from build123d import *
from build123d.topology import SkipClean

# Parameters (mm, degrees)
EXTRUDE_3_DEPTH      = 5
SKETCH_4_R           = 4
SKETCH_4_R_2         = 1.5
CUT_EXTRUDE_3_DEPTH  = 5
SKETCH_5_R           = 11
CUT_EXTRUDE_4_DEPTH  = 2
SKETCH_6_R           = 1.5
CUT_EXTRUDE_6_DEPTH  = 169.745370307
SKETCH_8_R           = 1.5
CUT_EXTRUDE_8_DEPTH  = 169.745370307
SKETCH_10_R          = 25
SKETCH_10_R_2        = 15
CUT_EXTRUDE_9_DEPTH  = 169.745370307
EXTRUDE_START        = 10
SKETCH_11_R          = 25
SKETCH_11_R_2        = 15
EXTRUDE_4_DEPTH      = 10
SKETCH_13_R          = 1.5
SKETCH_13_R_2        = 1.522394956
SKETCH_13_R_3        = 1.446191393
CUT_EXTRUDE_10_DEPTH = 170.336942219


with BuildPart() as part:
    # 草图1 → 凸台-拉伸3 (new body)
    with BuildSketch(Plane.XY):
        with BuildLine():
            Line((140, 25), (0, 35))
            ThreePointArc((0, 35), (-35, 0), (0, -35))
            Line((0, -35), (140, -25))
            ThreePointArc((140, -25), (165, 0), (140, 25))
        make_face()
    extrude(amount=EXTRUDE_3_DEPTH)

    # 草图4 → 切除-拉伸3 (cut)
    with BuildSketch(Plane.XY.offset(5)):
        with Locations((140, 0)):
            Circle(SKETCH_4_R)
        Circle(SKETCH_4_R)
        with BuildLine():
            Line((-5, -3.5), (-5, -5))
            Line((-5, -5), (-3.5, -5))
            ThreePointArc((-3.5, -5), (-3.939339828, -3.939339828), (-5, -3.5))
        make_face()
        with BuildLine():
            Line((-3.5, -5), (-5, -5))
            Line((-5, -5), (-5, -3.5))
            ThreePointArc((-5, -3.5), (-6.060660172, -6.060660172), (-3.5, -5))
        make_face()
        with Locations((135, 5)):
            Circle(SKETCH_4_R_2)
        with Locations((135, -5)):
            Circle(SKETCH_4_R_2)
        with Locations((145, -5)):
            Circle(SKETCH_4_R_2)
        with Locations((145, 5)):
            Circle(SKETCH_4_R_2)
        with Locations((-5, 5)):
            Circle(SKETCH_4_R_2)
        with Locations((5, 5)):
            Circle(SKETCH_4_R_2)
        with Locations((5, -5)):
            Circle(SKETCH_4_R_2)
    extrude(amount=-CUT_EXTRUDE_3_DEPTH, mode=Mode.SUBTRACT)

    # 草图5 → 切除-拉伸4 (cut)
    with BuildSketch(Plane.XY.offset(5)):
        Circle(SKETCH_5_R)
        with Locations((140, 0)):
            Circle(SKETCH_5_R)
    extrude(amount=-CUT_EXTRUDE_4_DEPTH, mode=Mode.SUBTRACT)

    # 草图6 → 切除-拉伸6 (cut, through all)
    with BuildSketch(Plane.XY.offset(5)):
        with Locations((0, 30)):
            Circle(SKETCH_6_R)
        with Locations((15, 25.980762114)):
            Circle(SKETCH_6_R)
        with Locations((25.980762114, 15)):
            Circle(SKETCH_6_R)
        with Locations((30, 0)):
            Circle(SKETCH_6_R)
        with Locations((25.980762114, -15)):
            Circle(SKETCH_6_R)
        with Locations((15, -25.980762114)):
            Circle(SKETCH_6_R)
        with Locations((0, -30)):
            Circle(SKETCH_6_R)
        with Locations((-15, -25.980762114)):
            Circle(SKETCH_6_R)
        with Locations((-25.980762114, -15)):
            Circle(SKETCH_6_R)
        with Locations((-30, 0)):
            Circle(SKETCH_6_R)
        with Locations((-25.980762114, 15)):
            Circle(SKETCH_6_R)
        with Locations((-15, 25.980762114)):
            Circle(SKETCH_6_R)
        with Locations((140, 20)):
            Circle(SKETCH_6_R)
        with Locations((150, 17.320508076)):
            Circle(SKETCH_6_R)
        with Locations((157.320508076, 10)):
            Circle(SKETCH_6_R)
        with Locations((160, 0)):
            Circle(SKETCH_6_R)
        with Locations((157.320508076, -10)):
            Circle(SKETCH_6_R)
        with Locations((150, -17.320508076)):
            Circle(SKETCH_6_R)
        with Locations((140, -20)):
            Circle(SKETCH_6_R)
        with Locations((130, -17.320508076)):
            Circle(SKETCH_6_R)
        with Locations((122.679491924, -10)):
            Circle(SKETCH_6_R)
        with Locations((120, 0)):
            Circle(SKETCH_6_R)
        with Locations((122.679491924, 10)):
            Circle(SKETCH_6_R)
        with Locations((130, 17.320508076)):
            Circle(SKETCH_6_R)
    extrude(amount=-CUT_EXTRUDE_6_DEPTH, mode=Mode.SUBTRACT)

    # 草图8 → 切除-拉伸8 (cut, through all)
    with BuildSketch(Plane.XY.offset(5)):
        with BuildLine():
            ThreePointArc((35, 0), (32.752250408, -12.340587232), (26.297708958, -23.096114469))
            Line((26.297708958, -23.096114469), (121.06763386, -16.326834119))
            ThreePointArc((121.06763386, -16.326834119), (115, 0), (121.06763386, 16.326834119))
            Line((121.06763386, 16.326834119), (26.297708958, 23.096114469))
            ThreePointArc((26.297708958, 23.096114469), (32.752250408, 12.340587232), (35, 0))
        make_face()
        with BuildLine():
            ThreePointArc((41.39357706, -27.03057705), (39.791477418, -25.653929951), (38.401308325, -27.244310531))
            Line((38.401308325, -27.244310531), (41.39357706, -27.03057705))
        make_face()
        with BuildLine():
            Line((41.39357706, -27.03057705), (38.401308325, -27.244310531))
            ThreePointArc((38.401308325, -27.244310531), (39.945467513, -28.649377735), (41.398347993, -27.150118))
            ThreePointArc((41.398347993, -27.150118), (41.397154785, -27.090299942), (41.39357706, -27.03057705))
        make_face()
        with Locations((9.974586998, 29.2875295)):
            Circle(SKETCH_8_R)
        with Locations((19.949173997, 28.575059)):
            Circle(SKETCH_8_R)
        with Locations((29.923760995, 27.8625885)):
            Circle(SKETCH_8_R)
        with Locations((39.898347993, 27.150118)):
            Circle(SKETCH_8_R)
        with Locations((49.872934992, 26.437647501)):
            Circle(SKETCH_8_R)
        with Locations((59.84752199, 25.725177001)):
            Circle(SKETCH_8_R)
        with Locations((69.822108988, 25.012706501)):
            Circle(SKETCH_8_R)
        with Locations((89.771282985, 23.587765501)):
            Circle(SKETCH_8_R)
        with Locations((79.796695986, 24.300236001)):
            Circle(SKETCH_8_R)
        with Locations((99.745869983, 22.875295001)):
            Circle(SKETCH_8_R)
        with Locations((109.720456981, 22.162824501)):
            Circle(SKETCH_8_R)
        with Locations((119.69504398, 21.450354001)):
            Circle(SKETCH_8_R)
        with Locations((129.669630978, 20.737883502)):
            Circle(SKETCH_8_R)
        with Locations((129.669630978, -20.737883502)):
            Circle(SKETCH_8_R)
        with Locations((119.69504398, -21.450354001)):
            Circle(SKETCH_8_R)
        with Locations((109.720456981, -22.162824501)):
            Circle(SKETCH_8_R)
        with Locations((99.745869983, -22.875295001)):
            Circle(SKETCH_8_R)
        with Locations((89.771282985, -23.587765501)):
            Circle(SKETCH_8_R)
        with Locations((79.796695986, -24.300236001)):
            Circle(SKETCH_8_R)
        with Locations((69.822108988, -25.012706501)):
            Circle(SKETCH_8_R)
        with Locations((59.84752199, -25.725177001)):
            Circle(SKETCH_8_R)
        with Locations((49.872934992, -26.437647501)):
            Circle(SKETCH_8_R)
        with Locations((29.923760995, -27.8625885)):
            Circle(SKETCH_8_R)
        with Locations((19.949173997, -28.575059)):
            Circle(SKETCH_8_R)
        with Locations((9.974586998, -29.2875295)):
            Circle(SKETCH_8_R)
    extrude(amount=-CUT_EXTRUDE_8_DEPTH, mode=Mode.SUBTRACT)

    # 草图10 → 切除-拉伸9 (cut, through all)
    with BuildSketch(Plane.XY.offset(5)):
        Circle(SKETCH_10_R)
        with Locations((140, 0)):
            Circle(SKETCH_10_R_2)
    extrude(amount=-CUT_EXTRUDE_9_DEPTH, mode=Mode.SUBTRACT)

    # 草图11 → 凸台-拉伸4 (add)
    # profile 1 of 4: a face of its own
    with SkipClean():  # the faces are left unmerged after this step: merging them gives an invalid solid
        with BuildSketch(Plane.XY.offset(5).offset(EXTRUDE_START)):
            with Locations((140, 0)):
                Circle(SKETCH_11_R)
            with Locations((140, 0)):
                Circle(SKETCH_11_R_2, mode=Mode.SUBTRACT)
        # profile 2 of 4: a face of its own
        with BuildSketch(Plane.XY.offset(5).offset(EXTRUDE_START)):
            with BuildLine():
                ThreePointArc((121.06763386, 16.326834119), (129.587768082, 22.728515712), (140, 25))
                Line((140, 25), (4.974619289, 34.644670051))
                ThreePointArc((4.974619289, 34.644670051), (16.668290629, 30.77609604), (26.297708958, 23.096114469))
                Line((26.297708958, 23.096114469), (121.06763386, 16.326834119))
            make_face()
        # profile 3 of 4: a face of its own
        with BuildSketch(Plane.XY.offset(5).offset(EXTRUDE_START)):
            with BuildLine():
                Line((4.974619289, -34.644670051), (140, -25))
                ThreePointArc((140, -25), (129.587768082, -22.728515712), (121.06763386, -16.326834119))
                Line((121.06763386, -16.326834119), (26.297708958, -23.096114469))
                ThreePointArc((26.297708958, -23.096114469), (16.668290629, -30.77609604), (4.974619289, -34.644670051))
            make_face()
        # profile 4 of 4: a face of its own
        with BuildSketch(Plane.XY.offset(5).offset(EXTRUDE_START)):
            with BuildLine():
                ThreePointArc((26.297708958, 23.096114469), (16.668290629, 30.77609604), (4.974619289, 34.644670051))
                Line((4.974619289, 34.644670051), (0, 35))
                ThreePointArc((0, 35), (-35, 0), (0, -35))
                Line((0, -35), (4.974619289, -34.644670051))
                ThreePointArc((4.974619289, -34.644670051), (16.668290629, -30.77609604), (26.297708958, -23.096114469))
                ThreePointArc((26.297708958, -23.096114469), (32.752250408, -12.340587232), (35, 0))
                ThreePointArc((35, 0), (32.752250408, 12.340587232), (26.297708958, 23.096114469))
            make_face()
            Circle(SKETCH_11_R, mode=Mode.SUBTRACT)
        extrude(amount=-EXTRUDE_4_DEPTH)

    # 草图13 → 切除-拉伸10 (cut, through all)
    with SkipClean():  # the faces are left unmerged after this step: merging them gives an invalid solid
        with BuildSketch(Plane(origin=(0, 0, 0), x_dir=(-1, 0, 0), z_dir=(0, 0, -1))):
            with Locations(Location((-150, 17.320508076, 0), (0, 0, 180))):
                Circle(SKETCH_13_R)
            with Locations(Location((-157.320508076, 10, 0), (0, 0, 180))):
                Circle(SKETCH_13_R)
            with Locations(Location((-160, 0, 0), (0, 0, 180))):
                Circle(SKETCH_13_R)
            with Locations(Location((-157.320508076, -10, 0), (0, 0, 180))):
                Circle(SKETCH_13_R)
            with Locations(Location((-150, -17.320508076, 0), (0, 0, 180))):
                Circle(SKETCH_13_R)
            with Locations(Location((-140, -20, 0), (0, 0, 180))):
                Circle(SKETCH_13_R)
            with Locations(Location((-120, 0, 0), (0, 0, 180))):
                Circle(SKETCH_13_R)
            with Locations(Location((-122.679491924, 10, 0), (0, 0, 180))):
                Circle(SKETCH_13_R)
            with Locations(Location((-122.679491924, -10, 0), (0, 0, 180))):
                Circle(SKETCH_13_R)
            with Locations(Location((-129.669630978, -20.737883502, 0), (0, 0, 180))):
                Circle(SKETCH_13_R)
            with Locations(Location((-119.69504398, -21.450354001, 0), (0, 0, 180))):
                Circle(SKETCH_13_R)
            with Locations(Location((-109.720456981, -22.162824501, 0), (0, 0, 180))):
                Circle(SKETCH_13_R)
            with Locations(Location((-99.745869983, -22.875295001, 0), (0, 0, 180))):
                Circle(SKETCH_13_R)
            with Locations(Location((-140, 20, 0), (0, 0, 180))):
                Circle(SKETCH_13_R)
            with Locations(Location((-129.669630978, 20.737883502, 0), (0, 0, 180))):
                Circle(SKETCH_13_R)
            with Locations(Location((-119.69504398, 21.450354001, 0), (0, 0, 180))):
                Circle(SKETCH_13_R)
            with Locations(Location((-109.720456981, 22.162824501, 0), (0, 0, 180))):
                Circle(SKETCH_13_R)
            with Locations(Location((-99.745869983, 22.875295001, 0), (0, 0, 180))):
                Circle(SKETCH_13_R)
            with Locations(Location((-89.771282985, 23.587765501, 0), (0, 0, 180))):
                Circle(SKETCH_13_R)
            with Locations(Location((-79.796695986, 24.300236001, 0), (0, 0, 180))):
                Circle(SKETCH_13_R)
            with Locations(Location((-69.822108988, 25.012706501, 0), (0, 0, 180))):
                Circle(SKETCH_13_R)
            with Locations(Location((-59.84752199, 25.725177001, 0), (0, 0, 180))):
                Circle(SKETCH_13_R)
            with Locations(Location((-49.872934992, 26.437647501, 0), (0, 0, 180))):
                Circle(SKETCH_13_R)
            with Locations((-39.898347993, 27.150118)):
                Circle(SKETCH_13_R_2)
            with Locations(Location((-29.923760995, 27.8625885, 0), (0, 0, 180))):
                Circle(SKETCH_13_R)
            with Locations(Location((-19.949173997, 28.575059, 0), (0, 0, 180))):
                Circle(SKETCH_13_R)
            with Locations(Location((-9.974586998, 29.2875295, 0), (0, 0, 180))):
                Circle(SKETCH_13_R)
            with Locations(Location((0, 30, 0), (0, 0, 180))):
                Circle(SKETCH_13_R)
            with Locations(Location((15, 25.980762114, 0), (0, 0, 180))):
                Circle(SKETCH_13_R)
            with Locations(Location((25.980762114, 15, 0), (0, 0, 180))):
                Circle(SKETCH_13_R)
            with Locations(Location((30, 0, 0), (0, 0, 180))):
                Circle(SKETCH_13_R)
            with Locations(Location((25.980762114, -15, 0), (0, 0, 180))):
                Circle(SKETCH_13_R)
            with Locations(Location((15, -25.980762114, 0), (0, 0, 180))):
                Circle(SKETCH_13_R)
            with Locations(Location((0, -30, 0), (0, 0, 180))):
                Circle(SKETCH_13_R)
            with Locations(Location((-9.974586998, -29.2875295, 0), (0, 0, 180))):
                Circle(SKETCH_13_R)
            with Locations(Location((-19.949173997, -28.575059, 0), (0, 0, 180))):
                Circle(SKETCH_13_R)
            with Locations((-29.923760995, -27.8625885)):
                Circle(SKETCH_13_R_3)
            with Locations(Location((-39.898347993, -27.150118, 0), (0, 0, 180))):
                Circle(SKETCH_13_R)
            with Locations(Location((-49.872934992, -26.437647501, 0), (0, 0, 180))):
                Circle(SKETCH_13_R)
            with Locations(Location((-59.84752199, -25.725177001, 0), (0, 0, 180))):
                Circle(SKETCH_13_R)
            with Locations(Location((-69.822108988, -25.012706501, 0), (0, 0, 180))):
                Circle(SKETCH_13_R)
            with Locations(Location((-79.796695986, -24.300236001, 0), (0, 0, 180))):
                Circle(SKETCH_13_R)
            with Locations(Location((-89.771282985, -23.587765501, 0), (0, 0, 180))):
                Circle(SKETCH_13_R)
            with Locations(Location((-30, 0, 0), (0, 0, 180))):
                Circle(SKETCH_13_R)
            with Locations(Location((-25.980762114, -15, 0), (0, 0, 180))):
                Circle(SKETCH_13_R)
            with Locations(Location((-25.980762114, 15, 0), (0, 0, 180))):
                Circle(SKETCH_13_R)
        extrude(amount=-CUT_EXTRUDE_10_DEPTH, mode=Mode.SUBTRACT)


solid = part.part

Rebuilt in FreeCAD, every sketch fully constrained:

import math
import FreeCAD as App
import Part
import Sketcher
from FreeCAD import Vector

doc = App.newDocument("Part")
params = doc.addObject("Spreadsheet::Sheet", "Params")
for row, (alias, value) in enumerate([
    ("sketch1_radius", "35 mm"),
    ("sketch1_radius2", "25 mm"),
    ("pad1_length", "5 mm"),
    ("sketch2_diameter", "8 mm"),
    ("sketch2_diameter2", "3 mm"),
    ("pocket1_length", "5 mm"),
    ("sketch3_diameter", "22 mm"),
    ("pocket2_length", "2 mm"),
    ("sketch4_diameter", "3 mm"),
    ("sketch5_diameter", "3 mm"),
    ("sketch5_radius", "35 mm"),
    ("sketch5_radius2", "25 mm"),
    ("sketch6_diameter", "50 mm"),
    ("sketch6_diameter2", "30 mm"),
    ("sketch7_diameter", "30 mm"),
    ("sketch7_diameter2", "50 mm"),
    ("sketch7_radius", "35 mm"),
    ("pad2_length", "10 mm"),
    ("sketch8_diameter", "3 mm"),
], start=1):
    params.set(f"A{row}", alias)
    params.set(f"B{row}", "=" + value)
    params.setAlias(f"B{row}", alias)

body = doc.addObject("PartDesign::Body", "Body")

# Sketch on XY plane
sketch1 = doc.addObject("Sketcher::SketchObject", "Sketch")
body.addObject(sketch1)
sketch1.AttachmentSupport = (doc.XY_Plane, [""])
sketch1.MapMode = "FlatFace"
sketch1.addGeometry([
    Part.LineSegment(Vector(140, 25, 0), Vector(0, 35, 0)),
    Part.ArcOfCircle(Part.Circle(Vector(0, 0, 0), Vector(0, 0, 1), 35), math.radians(90), math.radians(270)),
    Part.LineSegment(Vector(0, -35, 0), Vector(140, -25, 0)),
    Part.ArcOfCircle(Part.Circle(Vector(140, 0, 0), Vector(0, 0, 1), 25), math.radians(-90), math.radians(90)),
], False)
sketch1.addConstraint([
    Sketcher.Constraint("Coincident", 0, 2, 1, 1),
    Sketcher.Constraint("Coincident", 1, 2, 2, 1),
    Sketcher.Constraint("Coincident", 2, 2, 3, 1),
    Sketcher.Constraint("Coincident", 3, 2, 0, 1),
    Sketcher.Constraint("Coincident", 1, 3, -1, 1),
    Sketcher.Constraint("Symmetric", 2, 2, 3, 2, -1),
    Sketcher.Constraint("PointOnObject", 0, 2, -2),
    Sketcher.Constraint("PointOnObject", 1, 2, -2),
    Sketcher.Constraint("Vertical", 3, 3, 2, 2),
    Sketcher.Constraint("Radius", 1, 35.0),
    Sketcher.Constraint("Radius", 3, 25.0),
    Sketcher.Constraint("DistanceX", -1, 1, 3, 3, 140.0),
])
sketch1.setExpression("Constraints[9]", "Params.sketch1_radius")
sketch1.setExpression("Constraints[10]", "Params.sketch1_radius2")
pad1 = doc.addObject("PartDesign::Pad", "Pad")
body.addObject(pad1)
pad1.Profile = sketch1
pad1.setExpression("Length", "Params.pad1_length")

# Sketch on XY plane
sketch2 = doc.addObject("Sketcher::SketchObject", "Sketch001")
body.addObject(sketch2)
sketch2.AttachmentSupport = (doc.XY_Plane, [""])
sketch2.MapMode = "FlatFace"
sketch2.AttachmentOffset = App.Placement(Vector(0, 0, 5), App.Rotation())
sketch2.addGeometry([
    Part.Circle(Vector(140, 0, 0), Vector(0, 0, 1), 4),  # 0
    Part.Circle(Vector(0, 0, 0), Vector(0, 0, 1), 4),  # 1
    Part.ArcOfCircle(Part.Circle(Vector(-5, -5, 0), Vector(0, 0, 1), 1.5), math.radians(0), math.radians(90)),  # 2
    Part.ArcOfCircle(Part.Circle(Vector(-5, -5, 0), Vector(0, 0, 1), 1.5), math.radians(90), math.radians(360)),  # 3
    Part.Circle(Vector(135, 5, 0), Vector(0, 0, 1), 1.5),  # 4
    Part.Circle(Vector(135, -5, 0), Vector(0, 0, 1), 1.5),  # 5
    Part.Circle(Vector(145, -5, 0), Vector(0, 0, 1), 1.5),  # 6
    Part.Circle(Vector(145, 5, 0), Vector(0, 0, 1), 1.5),  # 7
    Part.Circle(Vector(-5, 5, 0), Vector(0, 0, 1), 1.5),  # 8
    Part.Circle(Vector(5, 5, 0), Vector(0, 0, 1), 1.5),  # 9
    Part.Circle(Vector(5, -5, 0), Vector(0, 0, 1), 1.5),  # 10
], False)
sketch2.addConstraint([
    Sketcher.Constraint("Tangent", 2, 1, 3, 2),
    Sketcher.Constraint("Coincident", 3, 1, 2, 2),
    Sketcher.Constraint("Coincident", 1, 3, -1, 1),
    Sketcher.Constraint("Equal", 0, 1),
    Sketcher.Constraint("Equal", 3, 4),
    Sketcher.Constraint("Equal", 4, 5),
    Sketcher.Constraint("Equal", 5, 6),
    Sketcher.Constraint("Equal", 6, 7),
    Sketcher.Constraint("Equal", 7, 8),
    Sketcher.Constraint("Equal", 8, 9),
    Sketcher.Constraint("Equal", 9, 10),
    Sketcher.Constraint("Symmetric", 2, 3, 9, 3, -1, 1),
    Sketcher.Constraint("Symmetric", 8, 3, 10, 3, -1, 1),
    Sketcher.Constraint("Symmetric", 8, 3, 9, 3, -2),
    Sketcher.Constraint("Symmetric", 4, 3, 5, 3, -1),
    Sketcher.Constraint("Symmetric", 6, 3, 7, 3, -1),
    Sketcher.Constraint("PointOnObject", 0, 3, -1),
    Sketcher.Constraint("Horizontal", 3, 3, 5, 3),
    Sketcher.Constraint("Horizontal", 5, 3, 6, 3),
    Sketcher.Constraint("Horizontal", 10, 3, 2, 1),
    Sketcher.Constraint("Vertical", 8, 3, 3, 1),
    Sketcher.Constraint("Diameter", 0, 8.0),
    Sketcher.Constraint("Diameter", 4, 3.0),
    Sketcher.Constraint("DistanceX", -1, 1, 0, 3, 140.0),
    Sketcher.Constraint("DistanceX", 2, 3, -1, 1, 5.0),
    Sketcher.Constraint("DistanceY", 2, 3, -1, 1, 5.0),
    Sketcher.Constraint("DistanceX", -1, 1, 4, 3, 135.0),
    Sketcher.Constraint("DistanceX", -1, 1, 6, 3, 145.0),
])
sketch2.setExpression("Constraints[21]", "Params.sketch2_diameter")
sketch2.setExpression("Constraints[22]", "Params.sketch2_diameter2")
pocket1 = doc.addObject("PartDesign::Pocket", "Pocket")
body.addObject(pocket1)
pocket1.Profile = sketch2
pocket1.setExpression("Length", "Params.pocket1_length")

# Sketch on XY plane
sketch3 = doc.addObject("Sketcher::SketchObject", "Sketch002")
body.addObject(sketch3)
sketch3.AttachmentSupport = (doc.XY_Plane, [""])
sketch3.MapMode = "FlatFace"
sketch3.AttachmentOffset = App.Placement(Vector(0, 0, 5), App.Rotation())
sketch3.addGeometry([
    Part.Circle(Vector(0, 0, 0), Vector(0, 0, 1), 11),
    Part.Circle(Vector(140, 0, 0), Vector(0, 0, 1), 11),
], False)
sketch3.addConstraint([
    Sketcher.Constraint("Coincident", 0, 3, -1, 1),
    Sketcher.Constraint("Equal", 0, 1),
    Sketcher.Constraint("PointOnObject", 1, 3, -1),
    Sketcher.Constraint("Diameter", 0, 22.0),
    Sketcher.Constraint("DistanceX", -1, 1, 1, 3, 140.0),
])
sketch3.setExpression("Constraints[3]", "Params.sketch3_diameter")
pocket2 = doc.addObject("PartDesign::Pocket", "Pocket001")
body.addObject(pocket2)
pocket2.Profile = sketch3
pocket2.setExpression("Length", "Params.pocket2_length")

# Sketch on XY plane
sketch4 = doc.addObject("Sketcher::SketchObject", "Sketch003")
body.addObject(sketch4)
sketch4.AttachmentSupport = (doc.XY_Plane, [""])
sketch4.MapMode = "FlatFace"
sketch4.AttachmentOffset = App.Placement(Vector(0, 0, 5), App.Rotation())
sketch4.addGeometry([
    Part.Circle(Vector(0, 30, 0), Vector(0, 0, 1), 1.5),  # 0
    Part.Circle(Vector(15, 25.980762, 0), Vector(0, 0, 1), 1.5),  # 1
    Part.Circle(Vector(25.980762, 15, 0), Vector(0, 0, 1), 1.5),  # 2
    Part.Circle(Vector(30, 0, 0), Vector(0, 0, 1), 1.5),  # 3
    Part.Circle(Vector(25.980762, -15, 0), Vector(0, 0, 1), 1.5),  # 4
    Part.Circle(Vector(15, -25.980762, 0), Vector(0, 0, 1), 1.5),  # 5
    Part.Circle(Vector(0, -30, 0), Vector(0, 0, 1), 1.5),  # 6
    Part.Circle(Vector(-15, -25.980762, 0), Vector(0, 0, 1), 1.5),  # 7
    Part.Circle(Vector(-25.980762, -15, 0), Vector(0, 0, 1), 1.5),  # 8
    Part.Circle(Vector(-30, 0, 0), Vector(0, 0, 1), 1.5),  # 9
    Part.Circle(Vector(-25.980762, 15, 0), Vector(0, 0, 1), 1.5),  # 10
    Part.Circle(Vector(-15, 25.980762, 0), Vector(0, 0, 1), 1.5),  # 11
    Part.Circle(Vector(140, 20, 0), Vector(0, 0, 1), 1.5),  # 12
    Part.Circle(Vector(150, 17.320508, 0), Vector(0, 0, 1), 1.5),  # 13
    Part.Circle(Vector(157.320508, 10, 0), Vector(0, 0, 1), 1.5),  # 14
    Part.Circle(Vector(160, 0, 0), Vector(0, 0, 1), 1.5),  # 15
    Part.Circle(Vector(157.320508, -10, 0), Vector(0, 0, 1), 1.5),  # 16
    Part.Circle(Vector(150, -17.320508, 0), Vector(0, 0, 1), 1.5),  # 17
    Part.Circle(Vector(140, -20, 0), Vector(0, 0, 1), 1.5),  # 18
    Part.Circle(Vector(130, -17.320508, 0), Vector(0, 0, 1), 1.5),  # 19
    Part.Circle(Vector(122.679492, -10, 0), Vector(0, 0, 1), 1.5),  # 20
    Part.Circle(Vector(120, 0, 0), Vector(0, 0, 1), 1.5),  # 21
    Part.Circle(Vector(122.679492, 10, 0), Vector(0, 0, 1), 1.5),  # 22
    Part.Circle(Vector(130, 17.320508, 0), Vector(0, 0, 1), 1.5),  # 23
], False)
sketch4.addConstraint([
    Sketcher.Constraint("Equal", 0, 1),
    Sketcher.Constraint("Equal", 1, 2),
    Sketcher.Constraint("Equal", 2, 3),
    Sketcher.Constraint("Equal", 3, 4),
    Sketcher.Constraint("Equal", 4, 5),
    Sketcher.Constraint("Equal", 5, 6),
    Sketcher.Constraint("Equal", 6, 7),
    Sketcher.Constraint("Equal", 7, 8),
    Sketcher.Constraint("Equal", 8, 9),
    Sketcher.Constraint("Equal", 9, 10),
    Sketcher.Constraint("Equal", 10, 11),
    Sketcher.Constraint("Equal", 11, 12),
    Sketcher.Constraint("Equal", 12, 13),
    Sketcher.Constraint("Equal", 13, 14),
    Sketcher.Constraint("Equal", 14, 15),
    Sketcher.Constraint("Equal", 15, 16),
    Sketcher.Constraint("Equal", 16, 17),
    Sketcher.Constraint("Equal", 17, 18),
    Sketcher.Constraint("Equal", 18, 19),
    Sketcher.Constraint("Equal", 19, 20),
    Sketcher.Constraint("Equal", 20, 21),
    Sketcher.Constraint("Equal", 21, 22),
    Sketcher.Constraint("Equal", 22, 23),
    Sketcher.Constraint("Symmetric", 0, 3, 6, 3, -1, 1),
    Sketcher.Constraint("Symmetric", 1, 3, 7, 3, -1, 1),
    Sketcher.Constraint("Symmetric", 2, 3, 8, 3, -1, 1),
    Sketcher.Constraint("Symmetric", 3, 3, 9, 3, -1, 1),
    Sketcher.Constraint("Symmetric", 4, 3, 10, 3, -1, 1),
    Sketcher.Constraint("Symmetric", 5, 3, 11, 3, -1, 1),
    Sketcher.Constraint("Symmetric", 5, 3, 7, 3, -2),
    Sketcher.Constraint("Symmetric", 4, 3, 8, 3, -2),
    Sketcher.Constraint("Symmetric", 14, 3, 16, 3, -1),
    Sketcher.Constraint("Symmetric", 13, 3, 17, 3, -1),
    Sketcher.Constraint("Symmetric", 12, 3, 18, 3, -1),
    Sketcher.Constraint("Symmetric", 20, 3, 22, 3, -1),
    Sketcher.Constraint("Symmetric", 19, 3, 23, 3, -1),
    Sketcher.Constraint("PointOnObject", 0, 3, -2),
    Sketcher.Constraint("PointOnObject", 3, 3, -1),
    Sketcher.Constraint("PointOnObject", 15, 3, -1),
    Sketcher.Constraint("PointOnObject", 21, 3, -1),
    Sketcher.Constraint("Horizontal", 17, 3, 19, 3),
    Sketcher.Constraint("Horizontal", 16, 3, 20, 3),
    Sketcher.Constraint("Diameter", 0, 3.0),
    Sketcher.Constraint("DistanceY", -1, 1, 0, 3, 30.0),
    Sketcher.Constraint("DistanceX", -1, 1, 1, 3, 15.0),
    Sketcher.Constraint("DistanceY", -1, 1, 2, 3, 15.0),
    Sketcher.Constraint("DistanceX", -1, 1, 3, 3, 30.0),
    Sketcher.Constraint("DistanceX", -1, 1, 12, 3, 140.0),
    Sketcher.Constraint("DistanceY", -1, 1, 12, 3, 20.0),
    Sketcher.Constraint("DistanceX", -1, 1, 13, 3, 150.0),
    Sketcher.Constraint("DistanceY", -1, 1, 14, 3, 10.0),
    Sketcher.Constraint("DistanceX", -1, 1, 15, 3, 160.0),
    Sketcher.Constraint("DistanceX", -1, 1, 19, 3, 130.0),
    Sketcher.Constraint("DistanceX", -1, 1, 21, 3, 120.0),
    Sketcher.Constraint("DistanceY", -1, 1, 13, 3, 17.320508),
    Sketcher.Constraint("DistanceX", -1, 1, 14, 3, 157.320508),
    Sketcher.Constraint("DistanceX", -1, 1, 20, 3, 122.679492),
    Sketcher.Constraint("DistanceY", -1, 1, 1, 3, 25.980762),
    Sketcher.Constraint("DistanceX", -1, 1, 2, 3, 25.980762),
])
sketch4.setExpression("Constraints[42]", "Params.sketch4_diameter")
pocket3 = doc.addObject("PartDesign::Pocket", "Pocket002")
body.addObject(pocket3)
pocket3.Profile = sketch4
pocket3.Type = "ThroughAll"

# Sketch on XY plane
sketch5 = doc.addObject("Sketcher::SketchObject", "Sketch004")
body.addObject(sketch5)
sketch5.AttachmentSupport = (doc.XY_Plane, [""])
sketch5.MapMode = "FlatFace"
sketch5.AttachmentOffset = App.Placement(Vector(0, 0, 5), App.Rotation())
sketch5.addGeometry([
    Part.ArcOfCircle(Part.Circle(Vector(0, 0, 0), Vector(0, 0, 1), 35), math.radians(-41.291407), math.radians(0)),  # 0
    Part.LineSegment(Vector(26.297709, -23.096114, 0), Vector(121.067634, -16.326834, 0)),  # 1
    Part.ArcOfCircle(Part.Circle(Vector(140, 0, 0), Vector(0, 0, 1), 25), math.radians(139.226277), math.radians(220.773723)),  # 2
    Part.LineSegment(Vector(121.067634, 16.326834, 0), Vector(26.297709, 23.096114, 0)),  # 3
    Part.ArcOfCircle(Part.Circle(Vector(0, 0, 0), Vector(0, 0, 1), 35), math.radians(0), math.radians(41.291407)),  # 4
    Part.ArcOfCircle(Part.Circle(Vector(39.898348, -27.150118, 0), Vector(0, 0, 1), 1.5), math.radians(4.570975), math.radians(183.600258)),  # 5
    Part.ArcOfCircle(Part.Circle(Vector(39.898348, -27.150118, 0), Vector(0, 0, 1), 1.5), math.radians(-176.399742), math.radians(0)),  # 6
    Part.ArcOfCircle(Part.Circle(Vector(39.898348, -27.150118, 0), Vector(0, 0, 1), 1.5), math.radians(0), math.radians(4.570974)),  # 7
    Part.Circle(Vector(9.974587, 29.28753, 0), Vector(0, 0, 1), 1.5),  # 8
    Part.Circle(Vector(19.949174, 28.575059, 0), Vector(0, 0, 1), 1.5),  # 9
    Part.Circle(Vector(29.923761, 27.862589, 0), Vector(0, 0, 1), 1.5),  # 10
    Part.Circle(Vector(39.898348, 27.150118, 0), Vector(0, 0, 1), 1.5),  # 11
    Part.Circle(Vector(49.872935, 26.437648, 0), Vector(0, 0, 1), 1.5),  # 12
    Part.Circle(Vector(59.847522, 25.725177, 0), Vector(0, 0, 1), 1.5),  # 13
    Part.Circle(Vector(69.822109, 25.012707, 0), Vector(0, 0, 1), 1.5),  # 14
    Part.Circle(Vector(89.771283, 23.587766, 0), Vector(0, 0, 1), 1.5),  # 15
    Part.Circle(Vector(79.796696, 24.300236, 0), Vector(0, 0, 1), 1.5),  # 16
    Part.Circle(Vector(99.74587, 22.875295, 0), Vector(0, 0, 1), 1.5),  # 17
    Part.Circle(Vector(109.720457, 22.162825, 0), Vector(0, 0, 1), 1.5),  # 18
    Part.Circle(Vector(119.695044, 21.450354, 0), Vector(0, 0, 1), 1.5),  # 19
    Part.Circle(Vector(129.669631, 20.737884, 0), Vector(0, 0, 1), 1.5),  # 20
    Part.Circle(Vector(129.669631, -20.737884, 0), Vector(0, 0, 1), 1.5),  # 21
    Part.Circle(Vector(119.695044, -21.450354, 0), Vector(0, 0, 1), 1.5),  # 22
    Part.Circle(Vector(109.720457, -22.162825, 0), Vector(0, 0, 1), 1.5),  # 23
    Part.Circle(Vector(99.74587, -22.875295, 0), Vector(0, 0, 1), 1.5),  # 24
    Part.Circle(Vector(89.771283, -23.587766, 0), Vector(0, 0, 1), 1.5),  # 25
    Part.Circle(Vector(79.796696, -24.300236, 0), Vector(0, 0, 1), 1.5),  # 26
    Part.Circle(Vector(69.822109, -25.012707, 0), Vector(0, 0, 1), 1.5),  # 27
    Part.Circle(Vector(59.847522, -25.725177, 0), Vector(0, 0, 1), 1.5),  # 28
    Part.Circle(Vector(49.872935, -26.437648, 0), Vector(0, 0, 1), 1.5),  # 29
    Part.Circle(Vector(29.923761, -27.862589, 0), Vector(0, 0, 1), 1.5),  # 30
    Part.Circle(Vector(19.949174, -28.575059, 0), Vector(0, 0, 1), 1.5),  # 31
    Part.Circle(Vector(9.974587, -29.28753, 0), Vector(0, 0, 1), 1.5),  # 32
], False)
sketch5.addConstraint([
    Sketcher.Constraint("Coincident", 0, 1, 1, 1),
    Sketcher.Constraint("Coincident", 1, 2, 2, 2),
    Sketcher.Constraint("Coincident", 2, 1, 3, 1),
    Sketcher.Constraint("Coincident", 3, 2, 4, 2),
    Sketcher.Constraint("Tangent", 4, 1, 0, 2),
    Sketcher.Constraint("Tangent", 5, 2, 6, 1),
    Sketcher.Constraint("Tangent", 6, 2, 7, 1),
    Sketcher.Constraint("Tangent", 7, 2, 5, 1),
    Sketcher.Constraint("Coincident", 0, 3, -1, 1),
    Sketcher.Constraint("Equal", 0, 4),
    Sketcher.Constraint("Equal", 7, 8),
    Sketcher.Constraint("Equal", 8, 9),
    Sketcher.Constraint("Equal", 9, 10),
    Sketcher.Constraint("Equal", 10, 11),
    Sketcher.Constraint("Equal", 11, 12),
    Sketcher.Constraint("Equal", 12, 13),
    Sketcher.Constraint("Equal", 13, 14),
    Sketcher.Constraint("Equal", 14, 15),
    Sketcher.Constraint("Equal", 15, 16),
    Sketcher.Constraint("Equal", 16, 17),
    Sketcher.Constraint("Equal", 17, 18),
    Sketcher.Constraint("Equal", 18, 19),
    Sketcher.Constraint("Equal", 19, 20),
    Sketcher.Constraint("Equal", 20, 21),
    Sketcher.Constraint("Equal", 21, 22),
    Sketcher.Constraint("Equal", 22, 23),
    Sketcher.Constraint("Equal", 23, 24),
    Sketcher.Constraint("Equal", 24, 25),
    Sketcher.Constraint("Equal", 25, 26),
    Sketcher.Constraint("Equal", 26, 27),
    Sketcher.Constraint("Equal", 27, 28),
    Sketcher.Constraint("Equal", 28, 29),
    Sketcher.Constraint("Equal", 29, 30),
    Sketcher.Constraint("Equal", 30, 31),
    Sketcher.Constraint("Equal", 31, 32),
    Sketcher.Constraint("Symmetric", 5, 3, 11, 3, -1),
    Sketcher.Constraint("Symmetric", 20, 3, 21, 3, -1),
    Sketcher.Constraint("Symmetric", 19, 3, 22, 3, -1),
    Sketcher.Constraint("Symmetric", 18, 3, 23, 3, -1),
    Sketcher.Constraint("Symmetric", 17, 3, 24, 3, -1),
    Sketcher.Constraint("Symmetric", 15, 3, 25, 3, -1),
    Sketcher.Constraint("Symmetric", 16, 3, 26, 3, -1),
    Sketcher.Constraint("Symmetric", 14, 3, 27, 3, -1),
    Sketcher.Constraint("Symmetric", 13, 3, 28, 3, -1),
    Sketcher.Constraint("Symmetric", 12, 3, 29, 3, -1),
    Sketcher.Constraint("Symmetric", 10, 3, 30, 3, -1),
    Sketcher.Constraint("Symmetric", 9, 3, 31, 3, -1),
    Sketcher.Constraint("Symmetric", 8, 3, 32, 3, -1),
    Sketcher.Constraint("Symmetric", 1, 2, 2, 1, -1),
    Sketcher.Constraint("PointOnObject", 4, 1, -1),
    Sketcher.Constraint("Horizontal", 7, 3, 6, 2),
    Sketcher.Constraint("Vertical", 0, 1, 3, 2),
    Sketcher.Constraint("Diameter", 8, 3.0),
    Sketcher.Constraint("Radius", 0, 35.0),
    Sketcher.Constraint("Radius", 2, 25.0),
    Sketcher.Constraint("DistanceX", -1, 1, 2, 3, 140.0),
    Sketcher.Constraint("DistanceY", 5, 3, -1, 1, 27.150118),
    Sketcher.Constraint("DistanceY", -1, 1, 8, 3, 29.28753),
    Sketcher.Constraint("DistanceY", -1, 1, 9, 3, 28.575059),
    Sketcher.Constraint("DistanceX", -1, 1, 10, 3, 29.923761),
    Sketcher.Constraint("DistanceY", -1, 1, 10, 3, 27.862589),
    Sketcher.Constraint("DistanceX", -1, 1, 13, 3, 59.847522),
    Sketcher.Constraint("DistanceX", -1, 1, 14, 3, 69.822109),
    Sketcher.Constraint("DistanceX", -1, 1, 17, 3, 99.74587),
    Sketcher.Constraint("DistanceX", -1, 1, 20, 3, 129.669631),
    Sketcher.Constraint("DistanceX", -1, 1, 0, 1, 26.297709),
    Sketcher.Constraint("DistanceX", -1, 1, 5, 2, 38.401308),
    Sketcher.Constraint("DistanceY", 5, 2, -1, 1, 27.244311),
    Sketcher.Constraint("DistanceX", 8, 3, 7, 3, 29.923761),
    Sketcher.Constraint("DistanceY", 12, 3, 11, 3, 0.71247),
    Sketcher.Constraint("DistanceX", 9, 3, 12, 3, 29.923761),
    Sketcher.Constraint("DistanceY", 13, 3, 12, 3, 0.712471),
    Sketcher.Constraint("DistanceY", 14, 3, 13, 3, 0.71247),
    Sketcher.Constraint("DistanceY", 15, 3, 14, 3, 1.424941),
    Sketcher.Constraint("DistanceX", 13, 3, 15, 3, 29.923761),
    Sketcher.Constraint("DistanceY", 16, 3, 14, 3, 0.712471),
    Sketcher.Constraint("DistanceX", 12, 3, 16, 3, 29.923761),
    Sketcher.Constraint("DistanceY", 17, 3, 15, 3, 0.71247),
    Sketcher.Constraint("DistanceY", 18, 3, 17, 3, 0.712471),
    Sketcher.Constraint("DistanceX", 16, 3, 18, 3, 29.923761),
    Sketcher.Constraint("DistanceY", 19, 3, 18, 3, 0.71247),
    Sketcher.Constraint("DistanceX", 15, 3, 19, 3, 29.923761),
    Sketcher.Constraint("DistanceY", 20, 3, 19, 3, 0.71247),
    Sketcher.Constraint("DistanceX", 22, 3, 1, 2, 1.37259),
    Sketcher.Constraint("DistanceX", 7, 2, 6, 2, 0.004771),
    Sketcher.Constraint("DistanceX", -1, 1, 9, 3, 19.949174),
])
sketch5.setExpression("Constraints[52]", "Params.sketch5_diameter")
sketch5.setExpression("Constraints[53]", "Params.sketch5_radius")
sketch5.setExpression("Constraints[54]", "Params.sketch5_radius2")
pocket4 = doc.addObject("PartDesign::Pocket", "Pocket003")
body.addObject(pocket4)
pocket4.Profile = sketch5
pocket4.Type = "ThroughAll"

# Sketch on XY plane
sketch6 = doc.addObject("Sketcher::SketchObject", "Sketch005")
body.addObject(sketch6)
sketch6.AttachmentSupport = (doc.XY_Plane, [""])
sketch6.MapMode = "FlatFace"
sketch6.AttachmentOffset = App.Placement(Vector(0, 0, 5), App.Rotation())
sketch6.addGeometry([
    Part.Circle(Vector(0, 0, 0), Vector(0, 0, 1), 25),
    Part.Circle(Vector(140, 0, 0), Vector(0, 0, 1), 15),
], False)
sketch6.addConstraint([
    Sketcher.Constraint("Coincident", 0, 3, -1, 1),
    Sketcher.Constraint("PointOnObject", 1, 3, -1),
    Sketcher.Constraint("Diameter", 0, 50.0),
    Sketcher.Constraint("Diameter", 1, 30.0),
    Sketcher.Constraint("DistanceX", -1, 1, 1, 3, 140.0),
])
sketch6.setExpression("Constraints[2]", "Params.sketch6_diameter")
sketch6.setExpression("Constraints[3]", "Params.sketch6_diameter2")
pocket5 = doc.addObject("PartDesign::Pocket", "Pocket004")
body.addObject(pocket5)
pocket5.Profile = sketch6
pocket5.Type = "ThroughAll"

# Sketch on XY plane
sketch7 = doc.addObject("Sketcher::SketchObject", "Sketch006")
body.addObject(sketch7)
sketch7.AttachmentSupport = (doc.XY_Plane, [""])
sketch7.MapMode = "FlatFace"
sketch7.AttachmentOffset = App.Placement(Vector(0, 0, 15), App.Rotation())
sketch7.addGeometry([
    Part.LineSegment(Vector(140, 25, 0), Vector(4.974619, 34.64467, 0)),  # 0
    Part.LineSegment(Vector(4.974619, 34.64467, 0), Vector(0, 35, 0)),  # 1
    Part.ArcOfCircle(Part.Circle(Vector(0, 0, 0), Vector(0, 0, 1), 35), math.radians(90), math.radians(270)),  # 2
    Part.LineSegment(Vector(0, -35, 0), Vector(4.974619, -34.64467, 0)),  # 3
    Part.LineSegment(Vector(4.974619, -34.64467, 0), Vector(140, -25, 0)),  # 4
    Part.ArcOfCircle(Part.Circle(Vector(140, 0, 0), Vector(0, 0, 1), 25), math.radians(-90), math.radians(90)),  # 5
    Part.ArcOfCircle(Part.Circle(Vector(140, 0, 0), Vector(0, 0, 1), 25), math.radians(139.226277), math.radians(220.773723)),  # 6
    Part.LineSegment(Vector(121.067634, -16.326834, 0), Vector(26.297709, -23.096114, 0)),  # 7
    Part.ArcOfCircle(Part.Circle(Vector(0, 0, 0), Vector(0, 0, 1), 35), math.radians(-41.291407), math.radians(0)),  # 8
    Part.ArcOfCircle(Part.Circle(Vector(0, 0, 0), Vector(0, 0, 1), 35), math.radians(0), math.radians(41.291407)),  # 9
    Part.LineSegment(Vector(26.297709, 23.096114, 0), Vector(121.067634, 16.326834, 0)),  # 10
    Part.Circle(Vector(140, 0, 0), Vector(0, 0, 1), 15),  # 11
    Part.Circle(Vector(0, 0, 0), Vector(0, 0, 1), 25),  # 12
], False)
sketch7.addConstraint([
    Sketcher.Constraint("Coincident", 0, 2, 1, 1),
    Sketcher.Constraint("Coincident", 1, 2, 2, 1),
    Sketcher.Constraint("Coincident", 2, 2, 3, 1),
    Sketcher.Constraint("Coincident", 3, 2, 4, 1),
    Sketcher.Constraint("Coincident", 4, 2, 5, 1),
    Sketcher.Constraint("Coincident", 5, 2, 0, 1),
    Sketcher.Constraint("Coincident", 6, 2, 7, 1),
    Sketcher.Constraint("Coincident", 7, 2, 8, 1),
    Sketcher.Constraint("Tangent", 8, 2, 9, 1),
    Sketcher.Constraint("Coincident", 9, 2, 10, 1),
    Sketcher.Constraint("Coincident", 10, 2, 6, 1),
    Sketcher.Constraint("Coincident", 2, 3, -1, 1),
    Sketcher.Constraint("Coincident", 8, 3, -1, 1),
    Sketcher.Constraint("Coincident", 12, 3, -1, 1),
    Sketcher.Constraint("Coincident", 6, 3, 5, 3),
    Sketcher.Constraint("Coincident", 11, 3, 5, 3),
    Sketcher.Constraint("Equal", 5, 6),
    Sketcher.Constraint("Equal", 2, 8),
    Sketcher.Constraint("Equal", 8, 9),
    Sketcher.Constraint("Equal", 6, 12),
    Sketcher.Constraint("Symmetric", 0, 2, 3, 2, -1),
    Sketcher.Constraint("Symmetric", 4, 2, 5, 2, -1),
    Sketcher.Constraint("PointOnObject", 1, 2, -2),
    Sketcher.Constraint("PointOnObject", 2, 2, -2),
    Sketcher.Constraint("PointOnObject", 8, 2, -1),
    Sketcher.Constraint("Parallel", 0, 1),
    Sketcher.Constraint("Parallel", 4, 7),
    Sketcher.Constraint("Parallel", 1, 10),
    Sketcher.Constraint("Vertical", 11, 3, 4, 2),
    Sketcher.Constraint("Vertical", 7, 2, 9, 2),
    Sketcher.Constraint("Diameter", 11, 30.0),
    Sketcher.Constraint("Diameter", 12, 50.0),
    Sketcher.Constraint("Radius", 2, 35.0),
    Sketcher.Constraint("DistanceX", -1, 1, 5, 3, 140.0),
    Sketcher.Constraint("DistanceX", -1, 1, 0, 2, 4.974619),
    Sketcher.Constraint("DistanceX", -1, 1, 7, 2, 26.297709),
])
sketch7.setExpression("Constraints[30]", "Params.sketch7_diameter")
sketch7.setExpression("Constraints[31]", "Params.sketch7_diameter2")
sketch7.setExpression("Constraints[32]", "Params.sketch7_radius")
pad2 = doc.addObject("PartDesign::Pad", "Pad001")
body.addObject(pad2)
pad2.Profile = sketch7
pad2.setExpression("Length", "Params.pad2_length")
pad2.Reversed = True

# Sketch on XY plane
sketch8 = doc.addObject("Sketcher::SketchObject", "Sketch007")
body.addObject(sketch8)
sketch8.AttachmentSupport = (doc.XY_Plane, [""])
sketch8.MapMode = "FlatFace"
sketch8.addGeometry([
    Part.Circle(Vector(150, 17.320508, 0), Vector(0, 0, 1), 1.5),  # 0
    Part.Circle(Vector(157.320508, 10, 0), Vector(0, 0, 1), 1.5),  # 1
    Part.Circle(Vector(160, 0, 0), Vector(0, 0, 1), 1.5),  # 2
    Part.Circle(Vector(157.320508, -10, 0), Vector(0, 0, 1), 1.5),  # 3
    Part.Circle(Vector(150, -17.320508, 0), Vector(0, 0, 1), 1.5),  # 4
    Part.Circle(Vector(140, -20, 0), Vector(0, 0, 1), 1.5),  # 5
    Part.Circle(Vector(120, 0, 0), Vector(0, 0, 1), 1.5),  # 6
    Part.Circle(Vector(122.679492, 10, 0), Vector(0, 0, 1), 1.5),  # 7
    Part.Circle(Vector(122.679492, -10, 0), Vector(0, 0, 1), 1.5),  # 8
    Part.Circle(Vector(129.669631, -20.737884, 0), Vector(0, 0, 1), 1.5),  # 9
    Part.Circle(Vector(119.695044, -21.450354, 0), Vector(0, 0, 1), 1.5),  # 10
    Part.Circle(Vector(109.720457, -22.162825, 0), Vector(0, 0, 1), 1.5),  # 11
    Part.Circle(Vector(99.74587, -22.875295, 0), Vector(0, 0, 1), 1.5),  # 12
    Part.Circle(Vector(140, 20, 0), Vector(0, 0, 1), 1.5),  # 13
    Part.Circle(Vector(129.669631, 20.737884, 0), Vector(0, 0, 1), 1.5),  # 14
    Part.Circle(Vector(119.695044, 21.450354, 0), Vector(0, 0, 1), 1.5),  # 15
    Part.Circle(Vector(109.720457, 22.162825, 0), Vector(0, 0, 1), 1.5),  # 16
    Part.Circle(Vector(99.74587, 22.875295, 0), Vector(0, 0, 1), 1.5),  # 17
    Part.Circle(Vector(89.771283, 23.587766, 0), Vector(0, 0, 1), 1.5),  # 18
    Part.Circle(Vector(79.796696, 24.300236, 0), Vector(0, 0, 1), 1.5),  # 19
    Part.Circle(Vector(69.822109, 25.012707, 0), Vector(0, 0, 1), 1.5),  # 20
    Part.Circle(Vector(59.847522, 25.725177, 0), Vector(0, 0, 1), 1.5),  # 21
    Part.Circle(Vector(49.872935, 26.437648, 0), Vector(0, 0, 1), 1.5),  # 22
    Part.Circle(Vector(39.898348, 27.150118, 0), Vector(0, 0, 1), 1.522395),  # 23
    Part.Circle(Vector(29.923761, 27.862589, 0), Vector(0, 0, 1), 1.5),  # 24
    Part.Circle(Vector(19.949174, 28.575059, 0), Vector(0, 0, 1), 1.5),  # 25
    Part.Circle(Vector(9.974587, 29.28753, 0), Vector(0, 0, 1), 1.5),  # 26
    Part.Circle(Vector(0, 30, 0), Vector(0, 0, 1), 1.5),  # 27
    Part.Circle(Vector(-15, 25.980762, 0), Vector(0, 0, 1), 1.5),  # 28
    Part.Circle(Vector(-25.980762, 15, 0), Vector(0, 0, 1), 1.5),  # 29
    Part.Circle(Vector(-30, 0, 0), Vector(0, 0, 1), 1.5),  # 30
    Part.Circle(Vector(-25.980762, -15, 0), Vector(0, 0, 1), 1.5),  # 31
    Part.Circle(Vector(-15, -25.980762, 0), Vector(0, 0, 1), 1.5),  # 32
    Part.Circle(Vector(0, -30, 0), Vector(0, 0, 1), 1.5),  # 33
    Part.Circle(Vector(9.974587, -29.28753, 0), Vector(0, 0, 1), 1.5),  # 34
    Part.Circle(Vector(19.949174, -28.575059, 0), Vector(0, 0, 1), 1.5),  # 35
    Part.Circle(Vector(29.923761, -27.862589, 0), Vector(0, 0, 1), 1.446191),  # 36
    Part.Circle(Vector(39.898348, -27.150118, 0), Vector(0, 0, 1), 1.5),  # 37
    Part.Circle(Vector(49.872935, -26.437648, 0), Vector(0, 0, 1), 1.5),  # 38
    Part.Circle(Vector(59.847522, -25.725177, 0), Vector(0, 0, 1), 1.5),  # 39
    Part.Circle(Vector(69.822109, -25.012707, 0), Vector(0, 0, 1), 1.5),  # 40
    Part.Circle(Vector(79.796696, -24.300236, 0), Vector(0, 0, 1), 1.5),  # 41
    Part.Circle(Vector(89.771283, -23.587766, 0), Vector(0, 0, 1), 1.5),  # 42
    Part.Circle(Vector(30, 0, 0), Vector(0, 0, 1), 1.5),  # 43
    Part.Circle(Vector(25.980762, -15, 0), Vector(0, 0, 1), 1.5),  # 44
    Part.Circle(Vector(25.980762, 15, 0), Vector(0, 0, 1), 1.5),  # 45
], False)
sketch8.addConstraint([
    Sketcher.Constraint("Equal", 0, 1),
    Sketcher.Constraint("Equal", 1, 2),
    Sketcher.Constraint("Equal", 2, 3),
    Sketcher.Constraint("Equal", 3, 4),
    Sketcher.Constraint("Equal", 4, 5),
    Sketcher.Constraint("Equal", 5, 6),
    Sketcher.Constraint("Equal", 6, 7),
    Sketcher.Constraint("Equal", 7, 8),
    Sketcher.Constraint("Equal", 8, 9),
    Sketcher.Constraint("Equal", 9, 10),
    Sketcher.Constraint("Equal", 10, 11),
    Sketcher.Constraint("Equal", 11, 12),
    Sketcher.Constraint("Equal", 12, 13),
    Sketcher.Constraint("Equal", 13, 14),
    Sketcher.Constraint("Equal", 14, 15),
    Sketcher.Constraint("Equal", 15, 16),
    Sketcher.Constraint("Equal", 16, 17),
    Sketcher.Constraint("Equal", 17, 18),
    Sketcher.Constraint("Equal", 18, 19),
    Sketcher.Constraint("Equal", 19, 20),
    Sketcher.Constraint("Equal", 20, 21),
    Sketcher.Constraint("Equal", 21, 22),
    Sketcher.Constraint("Equal", 22, 24),
    Sketcher.Constraint("Equal", 24, 25),
    Sketcher.Constraint("Equal", 25, 26),
    Sketcher.Constraint("Equal", 26, 27),
    Sketcher.Constraint("Equal", 27, 28),
    Sketcher.Constraint("Equal", 28, 29),
    Sketcher.Constraint("Equal", 29, 30),
    Sketcher.Constraint("Equal", 30, 31),
    Sketcher.Constraint("Equal", 31, 32),
    Sketcher.Constraint("Equal", 32, 33),
    Sketcher.Constraint("Equal", 33, 34),
    Sketcher.Constraint("Equal", 34, 35),
    Sketcher.Constraint("Equal", 35, 37),
    Sketcher.Constraint("Equal", 37, 38),
    Sketcher.Constraint("Equal", 38, 39),
    Sketcher.Constraint("Equal", 39, 40),
    Sketcher.Constraint("Equal", 40, 41),
    Sketcher.Constraint("Equal", 41, 42),
    Sketcher.Constraint("Equal", 42, 43),
    Sketcher.Constraint("Equal", 43, 44),
    Sketcher.Constraint("Equal", 44, 45),
    Sketcher.Constraint("Symmetric", 27, 3, 33, 3, -1, 1),
    Sketcher.Constraint("Symmetric", 30, 3, 43, 3, -1, 1),
    Sketcher.Constraint("Symmetric", 29, 3, 44, 3, -1, 1),
    Sketcher.Constraint("Symmetric", 31, 3, 45, 3, -1, 1),
    Sketcher.Constraint("Symmetric", 31, 3, 44, 3, -2),
    Sketcher.Constraint("Symmetric", 1, 3, 3, 3, -1),
    Sketcher.Constraint("Symmetric", 0, 3, 4, 3, -1),
    Sketcher.Constraint("Symmetric", 7, 3, 8, 3, -1),
    Sketcher.Constraint("Symmetric", 5, 3, 13, 3, -1),
    Sketcher.Constraint("Symmetric", 9, 3, 14, 3, -1),
    Sketcher.Constraint("Symmetric", 10, 3, 15, 3, -1),
    Sketcher.Constraint("Symmetric", 11, 3, 16, 3, -1),
    Sketcher.Constraint("Symmetric", 12, 3, 17, 3, -1),
    Sketcher.Constraint("Symmetric", 28, 3, 32, 3, -1),
    Sketcher.Constraint("Symmetric", 26, 3, 34, 3, -1),
    Sketcher.Constraint("Symmetric", 25, 3, 35, 3, -1),
    Sketcher.Constraint("Symmetric", 24, 3, 36, 3, -1),
    Sketcher.Constraint("Symmetric", 23, 3, 37, 3, -1),
    Sketcher.Constraint("Symmetric", 22, 3, 38, 3, -1),
    Sketcher.Constraint("Symmetric", 21, 3, 39, 3, -1),
    Sketcher.Constraint("Symmetric", 20, 3, 40, 3, -1),
    Sketcher.Constraint("Symmetric", 19, 3, 41, 3, -1),
    Sketcher.Constraint("Symmetric", 18, 3, 42, 3, -1),
    Sketcher.Constraint("PointOnObject", 2, 3, -1),
    Sketcher.Constraint("PointOnObject", 6, 3, -1),
    Sketcher.Constraint("PointOnObject", 27, 3, -2),
    Sketcher.Constraint("PointOnObject", 30, 3, -1),
    Sketcher.Constraint("Horizontal", 1, 3, 7, 3),
    Sketcher.Constraint("Diameter", 0, 3.0),
    Sketcher.Constraint("DistanceX", -1, 1, 0, 3, 150.0),
    Sketcher.Constraint("DistanceY", -1, 1, 1, 3, 10.0),
    Sketcher.Constraint("DistanceX", -1, 1, 2, 3, 160.0),
    Sketcher.Constraint("DistanceX", -1, 1, 5, 3, 140.0),
    Sketcher.Constraint("DistanceY", 5, 3, -1, 1, 20.0),
    Sketcher.Constraint("DistanceX", -1, 1, 6, 3, 120.0),
    Sketcher.Constraint("DistanceY", -1, 1, 27, 3, 30.0),
    Sketcher.Constraint("DistanceX", 28, 3, -1, 1, 15.0),
    Sketcher.Constraint("DistanceY", -1, 1, 29, 3, 15.0),
    Sketcher.Constraint("DistanceX", 30, 3, -1, 1, 30.0),
    Sketcher.Constraint("Diameter", 23, 3.04479),
    Sketcher.Constraint("Diameter", 36, 2.892383),
    Sketcher.Constraint("DistanceX", 44, 3, 36, 3, 3.942999),
    Sketcher.Constraint("DistanceY", -1, 1, 0, 3, 17.320508),
    Sketcher.Constraint("DistanceX", -1, 1, 1, 3, 157.320508),
    Sketcher.Constraint("DistanceX", -1, 1, 7, 3, 122.679492),
    Sketcher.Constraint("DistanceX", -1, 1, 9, 3, 129.669631),
    Sketcher.Constraint("DistanceX", -1, 1, 12, 3, 99.74587),
    Sketcher.Constraint("DistanceX", -1, 1, 20, 3, 69.822109),
    Sketcher.Constraint("DistanceX", -1, 1, 21, 3, 59.847522),
    Sketcher.Constraint("DistanceX", -1, 1, 24, 3, 29.923761),
    Sketcher.Constraint("DistanceY", -1, 1, 24, 3, 27.862589),
    Sketcher.Constraint("DistanceY", -1, 1, 25, 3, 28.575059),
    Sketcher.Constraint("DistanceY", -1, 1, 26, 3, 29.28753),
    Sketcher.Constraint("DistanceY", 10, 3, 9, 3, 0.71247),
    Sketcher.Constraint("DistanceY", 11, 3, 10, 3, 0.71247),
    Sketcher.Constraint("DistanceY", 12, 3, 11, 3, 0.712471),
    Sketcher.Constraint("DistanceY", 17, 3, 18, 3, 0.71247),
    Sketcher.Constraint("DistanceX", 18, 3, 15, 3, 29.923761),
    Sketcher.Constraint("DistanceX", 18, 3, 7, 3, 32.908209),
    Sketcher.Constraint("DistanceY", 18, 3, 19, 3, 0.71247),
    Sketcher.Constraint("DistanceX", 19, 3, 16, 3, 29.923761),
    Sketcher.Constraint("DistanceY", 19, 3, 20, 3, 0.712471),
    Sketcher.Constraint("DistanceY", 20, 3, 21, 3, 0.71247),
    Sketcher.Constraint("DistanceY", 21, 3, 22, 3, 0.712471),
    Sketcher.Constraint("DistanceX", 22, 3, 19, 3, 29.923761),
    Sketcher.Constraint("DistanceY", 22, 3, 23, 3, 0.71247),
    Sketcher.Constraint("DistanceX", 23, 3, 20, 3, 29.923761),
    Sketcher.Constraint("DistanceY", 23, 3, 24, 3, 0.712471),
    Sketcher.Constraint("DistanceX", 25, 3, 22, 3, 29.923761),
    Sketcher.Constraint("DistanceX", 26, 3, 23, 3, 29.923761),
    Sketcher.Constraint("DistanceX", 35, 3, 44, 3, 6.031588),
    Sketcher.Constraint("DistanceY", -1, 1, 28, 3, 25.980762),
])
sketch8.setExpression("Constraints[71]", "Params.sketch8_diameter")
pocket6 = doc.addObject("PartDesign::Pocket", "Pocket005")
body.addObject(pocket6)
pocket6.Profile = sketch8
pocket6.Type = "ThroughAll"
pocket6.Reversed = True

doc.recompute()
